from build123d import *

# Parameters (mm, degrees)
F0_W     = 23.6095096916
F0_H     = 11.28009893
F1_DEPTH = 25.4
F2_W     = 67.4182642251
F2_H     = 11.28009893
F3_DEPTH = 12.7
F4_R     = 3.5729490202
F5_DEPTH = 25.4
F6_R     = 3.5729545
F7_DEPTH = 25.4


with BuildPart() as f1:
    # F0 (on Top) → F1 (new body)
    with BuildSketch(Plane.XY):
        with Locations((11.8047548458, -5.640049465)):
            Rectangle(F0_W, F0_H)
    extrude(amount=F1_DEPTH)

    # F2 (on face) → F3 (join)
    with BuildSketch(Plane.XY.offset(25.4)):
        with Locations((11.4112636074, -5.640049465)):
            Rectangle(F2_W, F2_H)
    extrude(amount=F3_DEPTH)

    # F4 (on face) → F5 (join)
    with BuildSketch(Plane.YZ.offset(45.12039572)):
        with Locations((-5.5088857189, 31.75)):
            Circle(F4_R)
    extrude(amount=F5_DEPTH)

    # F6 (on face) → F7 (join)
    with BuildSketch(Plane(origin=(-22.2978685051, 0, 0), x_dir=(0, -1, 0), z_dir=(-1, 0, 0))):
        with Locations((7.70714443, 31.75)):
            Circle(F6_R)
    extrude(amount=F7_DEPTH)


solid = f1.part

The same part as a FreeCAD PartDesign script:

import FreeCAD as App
import Part
import Sketcher

V = App.Vector
Q = App.Units.Quantity


def add_polygon(sketch, points):
    """Adds a closed chain of lines whose ends are joined by coincident constraints."""
    first, n = sketch.GeometryCount, len(points)
    for a, b in zip(points, points[1:] + points[:1]):
        sketch.addGeometry(Part.LineSegment(App.Vector(*a, 0), App.Vector(*b, 0)), False)
    for i in range(n):
        sketch.addConstraint(Sketcher.Constraint("Coincident", first + i, 2, first + (i + 1) % n, 1))

doc = App.newDocument("Part")
body = doc.addObject("PartDesign::Body", "Body")

# Sketch on XY plane
sketch1 = body.newObject("Sketcher::SketchObject", "Sketch")
sketch1.AttachmentSupport = (doc.getObject("XY_Plane"), [""])
sketch1.MapMode = "FlatFace"
add_polygon(sketch1, [(0, 0), (0, -11.280099), (23.60951, -11.280099), (23.60951, 0)])  # lines 0-3
sketch1.addConstraint(Sketcher.Constraint("Vertical", 0))
sketch1.addConstraint(Sketcher.Constraint("Horizontal", 1))
sketch1.addConstraint(Sketcher.Constraint("Vertical", 2))
sketch1.addConstraint(Sketcher.Constraint("Horizontal", 3))
sketch1.addConstraint(Sketcher.Constraint("Coincident", 3, 2, -1, 1))
sketch1.addConstraint(Sketcher.Constraint("DistanceY", 0, 2, 0, 1, 11.280099))
sketch1.addConstraint(Sketcher.Constraint("DistanceX", 1, 1, 1, 2, 23.60951))
pad1 = body.newObject("PartDesign::Pad", "Pad")
pad1.Profile = sketch1
pad1.Length = Q("1 in")

# Sketch on XY plane
sketch2 = body.newObject("Sketcher::SketchObject", "Sketch001")
sketch2.AttachmentSupport = (doc.getObject("XY_Plane"), [""])
sketch2.MapMode = "FlatFace"
sketch2.AttachmentOffset = App.Placement(V(0, 0, 1 * 25.4), App.Rotation())
add_polygon(sketch2, [(-22.297869, 0), (-22.297869, -11.280099), (45.120396, -11.280099), (45.120396, 0)])  # lines 0-3
sketch2.addConstraint(Sketcher.Constraint("Vertical", 0))
sketch2.addConstraint(Sketcher.Constraint("Horizontal", 1))
sketch2.addConstraint(Sketcher.Constraint("Vertical", 2))
sketch2.addConstraint(Sketcher.Constraint("Horizontal", 3))
sketch2.addConstraint(Sketcher.Constraint("PointOnObject", 2, 2, -1))
sketch2.addConstraint(Sketcher.Constraint("DistanceY", 0, 2, 0, 1, 11.280099))
sketch2.addConstraint(Sketcher.Constraint("DistanceX", 1, 1, 1, 2, 67.418264))
sketch2.addConstraint(Sketcher.Constraint("DistanceX", 0, 2, -1, 1, 22.297869))
pad2 = body.newObject("PartDesign::Pad", "Pad001")
pad2.Profile = sketch2
pad2.Length = Q("0.5 in")

# Sketch on YZ plane
sketch3 = body.newObject("Sketcher::SketchObject", "Sketch002")
sketch3.AttachmentSupport = (doc.getObject("YZ_Plane"), [""])
sketch3.MapMode = "FlatFace"
sketch3.AttachmentOffset = App.Placement(V(0, 0, 45.120396), App.Rotation())
sketch3.addGeometry(Part.Circle(V(-5.508886, 31.75, 0), V(0, 0, 1), 3.572949), False)
sketch3.addConstraint(Sketcher.Constraint("Diameter", 0, 7.145898))
sketch3.addConstraint(Sketcher.Constraint("DistanceY", -1, 1, 0, 3, Q("1.25 in")))
sketch3.addConstraint(Sketcher.Constraint("DistanceX", 0, 3, -1, 1, 5.508886))
pad3 = body.newObject("PartDesign::Pad", "Pad002")
pad3.Profile = sketch3
pad3.Length = Q("1 in")

# Sketch on YZ plane
sketch4 = body.newObject("Sketcher::SketchObject", "Sketch003")
sketch4.AttachmentSupport = (doc.getObject("YZ_Plane"), [""])
sketch4.MapMode = "FlatFace"
sketch4.AttachmentOffset = App.Placement(V(0, 0, -22.297869), App.Rotation())
sketch4.addGeometry(Part.Circle(V(-7.707144, 31.75, 0), V(0, 0, 1), 3.572954), False)
sketch4.addConstraint(Sketcher.Constraint("DistanceY", -1, 1, 0, 3, Q("1.25 in")))
sketch4.addConstraint(Sketcher.Constraint("Diameter", 0, 7.145909))
sketch4.addConstraint(Sketcher.Constraint("DistanceX", 0, 3, -1, 1, 7.707144))
pad4 = body.newObject("PartDesign::Pad", "Pad003")
pad4.Profile = sketch4
pad4.Length = Q("1 in")
pad4.Reversed = True

doc.recompute()
